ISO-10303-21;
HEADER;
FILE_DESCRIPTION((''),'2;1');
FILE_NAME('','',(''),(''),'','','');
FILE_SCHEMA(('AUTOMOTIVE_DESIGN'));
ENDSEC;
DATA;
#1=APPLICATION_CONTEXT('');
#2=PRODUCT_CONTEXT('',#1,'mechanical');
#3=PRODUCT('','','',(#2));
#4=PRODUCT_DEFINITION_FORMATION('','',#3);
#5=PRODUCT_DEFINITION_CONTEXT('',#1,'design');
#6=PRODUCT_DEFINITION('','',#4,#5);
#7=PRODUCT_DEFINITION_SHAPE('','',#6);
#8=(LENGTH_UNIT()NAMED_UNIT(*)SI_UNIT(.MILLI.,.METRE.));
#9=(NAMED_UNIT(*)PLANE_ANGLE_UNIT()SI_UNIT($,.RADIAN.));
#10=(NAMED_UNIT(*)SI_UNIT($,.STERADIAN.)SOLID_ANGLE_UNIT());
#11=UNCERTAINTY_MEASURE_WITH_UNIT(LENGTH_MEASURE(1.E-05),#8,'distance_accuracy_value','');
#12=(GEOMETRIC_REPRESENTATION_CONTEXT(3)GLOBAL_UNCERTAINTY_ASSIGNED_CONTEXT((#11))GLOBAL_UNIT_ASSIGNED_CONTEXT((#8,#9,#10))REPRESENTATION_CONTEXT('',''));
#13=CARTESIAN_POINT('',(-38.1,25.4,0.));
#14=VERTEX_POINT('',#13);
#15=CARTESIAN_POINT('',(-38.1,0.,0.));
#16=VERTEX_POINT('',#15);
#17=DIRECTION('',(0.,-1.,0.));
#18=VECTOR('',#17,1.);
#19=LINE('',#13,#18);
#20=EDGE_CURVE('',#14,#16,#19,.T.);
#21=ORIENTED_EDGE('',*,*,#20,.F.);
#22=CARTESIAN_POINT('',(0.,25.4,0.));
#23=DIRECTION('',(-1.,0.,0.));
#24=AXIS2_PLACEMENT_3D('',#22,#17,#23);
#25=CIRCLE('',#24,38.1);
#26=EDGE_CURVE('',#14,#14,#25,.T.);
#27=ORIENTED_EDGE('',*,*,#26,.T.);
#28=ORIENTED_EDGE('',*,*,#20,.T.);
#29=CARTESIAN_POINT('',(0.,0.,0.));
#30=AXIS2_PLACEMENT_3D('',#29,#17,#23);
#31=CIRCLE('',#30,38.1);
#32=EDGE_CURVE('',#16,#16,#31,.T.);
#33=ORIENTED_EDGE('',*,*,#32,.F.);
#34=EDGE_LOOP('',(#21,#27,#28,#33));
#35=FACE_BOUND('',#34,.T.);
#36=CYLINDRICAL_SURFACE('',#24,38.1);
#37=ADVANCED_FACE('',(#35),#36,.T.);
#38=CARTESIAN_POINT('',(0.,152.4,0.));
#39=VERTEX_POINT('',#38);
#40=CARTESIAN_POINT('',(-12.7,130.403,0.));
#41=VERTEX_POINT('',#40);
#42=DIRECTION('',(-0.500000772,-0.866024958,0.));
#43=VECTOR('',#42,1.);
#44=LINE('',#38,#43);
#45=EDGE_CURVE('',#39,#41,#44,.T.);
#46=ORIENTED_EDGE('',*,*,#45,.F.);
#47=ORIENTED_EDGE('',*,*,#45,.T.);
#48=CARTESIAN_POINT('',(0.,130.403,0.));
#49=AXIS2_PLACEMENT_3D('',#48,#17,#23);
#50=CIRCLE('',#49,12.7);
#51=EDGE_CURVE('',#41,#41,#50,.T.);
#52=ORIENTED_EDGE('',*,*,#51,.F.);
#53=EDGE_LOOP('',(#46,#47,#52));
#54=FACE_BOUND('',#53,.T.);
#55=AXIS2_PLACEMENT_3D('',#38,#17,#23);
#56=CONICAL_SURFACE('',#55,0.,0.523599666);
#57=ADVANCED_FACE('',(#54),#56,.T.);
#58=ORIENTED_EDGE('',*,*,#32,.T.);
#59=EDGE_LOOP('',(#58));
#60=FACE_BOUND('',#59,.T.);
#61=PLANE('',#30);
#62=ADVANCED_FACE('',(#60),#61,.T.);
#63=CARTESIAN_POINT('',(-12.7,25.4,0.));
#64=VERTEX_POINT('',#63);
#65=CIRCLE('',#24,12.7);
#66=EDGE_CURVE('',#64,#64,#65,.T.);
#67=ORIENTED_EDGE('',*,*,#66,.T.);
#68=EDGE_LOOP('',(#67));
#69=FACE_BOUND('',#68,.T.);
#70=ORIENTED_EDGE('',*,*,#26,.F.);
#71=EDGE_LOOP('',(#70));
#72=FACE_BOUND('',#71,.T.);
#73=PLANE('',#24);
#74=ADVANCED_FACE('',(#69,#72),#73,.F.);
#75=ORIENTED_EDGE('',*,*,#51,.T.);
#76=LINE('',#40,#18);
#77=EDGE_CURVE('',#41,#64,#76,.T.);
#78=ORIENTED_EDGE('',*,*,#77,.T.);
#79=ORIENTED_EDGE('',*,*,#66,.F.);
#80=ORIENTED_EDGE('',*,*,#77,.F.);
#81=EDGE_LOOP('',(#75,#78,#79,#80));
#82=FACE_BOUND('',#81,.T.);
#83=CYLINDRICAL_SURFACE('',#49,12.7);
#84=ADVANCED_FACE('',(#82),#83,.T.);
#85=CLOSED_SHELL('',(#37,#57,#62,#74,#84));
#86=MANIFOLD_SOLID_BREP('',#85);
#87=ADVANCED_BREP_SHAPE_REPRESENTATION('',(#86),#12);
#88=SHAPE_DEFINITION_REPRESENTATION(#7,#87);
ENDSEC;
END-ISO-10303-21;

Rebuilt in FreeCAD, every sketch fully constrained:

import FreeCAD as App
import Part
import Sketcher

V = App.Vector
Q = App.Units.Quantity

doc = App.newDocument("Part")
body = doc.addObject("PartDesign::Body", "Body")

# Sketch on XY plane
sketch1 = body.newObject("Sketcher::SketchObject", "Sketch")
sketch1.AttachmentSupport = (doc.getObject("XY_Plane"), [""])
sketch1.MapMode = "FlatFace"
sketch1.addGeometry([
    Part.LineSegment(V(0, 0, 0), V(0, 152, 0)),  # 0
    Part.LineSegment(V(0, 152, 0), V(-13, 130, 0)),  # 1
    Part.LineSegment(V(-13, 130, 0), V(-13, 25, 0)),  # 2
    Part.LineSegment(V(-13, 25, 0), V(-38, 25, 0)),  # 3
    Part.LineSegment(V(-38, 25, 0), V(-38, 0, 0)),  # 4
    Part.LineSegment(V(-38, 0, 0), V(0, 0, 0)),  # 5
], False)
sketch1.addConstraint([
    Sketcher.Constraint("Coincident", 0, 2, 1, 1),
    Sketcher.Constraint("Coincident", 1, 2, 2, 1),
    Sketcher.Constraint("Coincident", 2, 2, 3, 1),
    Sketcher.Constraint("Coincident", 3, 2, 4, 1),
    Sketcher.Constraint("Coincident", 4, 2, 5, 1),
    Sketcher.Constraint("Coincident", 5, 2, 0, 1),
    Sketcher.Constraint("Vertical", 0),
    Sketcher.Constraint("Vertical", 2),
    Sketcher.Constraint("Horizontal", 3),
    Sketcher.Constraint("Vertical", 4),
    Sketcher.Constraint("Horizontal", 5),
    Sketcher.Constraint("Coincident", 5, 2, -1, 1),
    Sketcher.Constraint("Equal", 3, 4),
    Sketcher.Constraint("DistanceX", 3, 2, 3, 1, Q("1 in")),
    Sketcher.Constraint("DistanceY", 0, 1, 0, 2, Q("6 in")),
    Sketcher.Constraint("Distance", 1, Q("1 in")),
    Sketcher.Constraint("DistanceX", 1, 2, -1, 1, Q("0.5 in")),
])
revolution = body.newObject("PartDesign::Revolution", "Revolution")
revolution.Profile = sketch1
revolution.ReferenceAxis = (sketch1, ["V_Axis"])
revolution.Angle = 360

doc.recompute()
